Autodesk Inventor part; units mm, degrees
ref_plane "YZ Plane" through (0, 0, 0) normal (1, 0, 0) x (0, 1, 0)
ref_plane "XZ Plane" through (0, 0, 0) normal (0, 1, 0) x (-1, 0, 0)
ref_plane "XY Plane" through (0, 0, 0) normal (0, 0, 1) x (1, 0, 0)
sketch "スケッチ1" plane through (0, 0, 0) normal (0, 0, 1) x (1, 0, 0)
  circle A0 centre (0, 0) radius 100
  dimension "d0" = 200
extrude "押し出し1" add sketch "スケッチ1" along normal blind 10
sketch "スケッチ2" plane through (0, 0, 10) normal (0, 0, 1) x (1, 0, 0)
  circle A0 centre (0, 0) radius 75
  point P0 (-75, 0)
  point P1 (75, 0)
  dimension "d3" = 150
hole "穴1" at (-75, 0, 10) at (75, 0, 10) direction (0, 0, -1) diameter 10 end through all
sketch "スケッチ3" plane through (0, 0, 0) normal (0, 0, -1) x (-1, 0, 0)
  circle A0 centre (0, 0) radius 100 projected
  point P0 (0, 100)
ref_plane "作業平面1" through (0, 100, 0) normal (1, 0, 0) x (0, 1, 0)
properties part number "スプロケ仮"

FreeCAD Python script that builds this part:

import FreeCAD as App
import Part
import Sketcher
from FreeCAD import Vector
Q = App.Units.Quantity

doc = App.newDocument("Part")
params = doc.addObject("Spreadsheet::Sheet", "Params")
for row, (alias, value) in enumerate([
    ("sketch1_diameter", "200 mm"),
    ("pad1_length", "10 mm"),
    ("sketch2_diameter", "10 mm"),
    ("hole_diameter", "10 mm"),
], start=1):
    params.set(f"A{row}", alias)
    params.set(f"B{row}", "=" + value)
    params.setAlias(f"B{row}", alias)

body = doc.addObject("PartDesign::Body", "Body")

sketch1 = body.newObject("Sketcher::SketchObject", "Sketch")
sketch1.AttachmentSupport = (doc.getObject("XY_Plane"), [""])
sketch1.MapMode = "FlatFace"
sketch1.addGeometry(Part.Circle(Vector(0, 0, 0), Vector(0, 0, 1), 100), False)
sketch1.addConstraint([
    Sketcher.Constraint("Coincident", 0, 3, -1, 1),
    Sketcher.Constraint("Diameter", 0, Q("200 mm")),
])
sketch1.setExpression("Constraints[1]", "Params.sketch1_diameter")
pad1 = body.newObject("PartDesign::Pad", "Pad")
pad1.Profile = sketch1
pad1.setExpression("Length", "Params.pad1_length")

sketch2 = body.newObject("Sketcher::SketchObject", "Sketch001")
sketch2.AttachmentSupport = (doc.getObject("XY_Plane"), [""])
sketch2.MapMode = "FlatFace"
sketch2.AttachmentOffset = App.Placement(Vector(0, 0, 10), App.Rotation())
sketch2.addGeometry([
    Part.Circle(Vector(-75, 0, 0), Vector(0, 0, 1), 5),
    Part.Circle(Vector(75, 0, 0), Vector(0, 0, 1), 5),
], False)
sketch2.addConstraint([
    Sketcher.Constraint("Equal", 0, 1),
    Sketcher.Constraint("Symmetric", 0, 3, 1, 3, -1, 1),
    Sketcher.Constraint("PointOnObject", 0, 3, -1),
    Sketcher.Constraint("Diameter", 0, Q("10 mm")),
    Sketcher.Constraint("DistanceX", 0, 3, -1, 1, Q("75 mm")),
])
sketch2.setExpression("Constraints[3]", "Params.sketch2_diameter")
doc.recompute()
hole = body.newObject("PartDesign::Hole", "Hole")
hole.Profile = sketch2
hole.ThreadType = "None"
hole.setExpression("Diameter", "Params.hole_diameter")
hole.DepthType = "ThroughAll"

doc.recompute()
